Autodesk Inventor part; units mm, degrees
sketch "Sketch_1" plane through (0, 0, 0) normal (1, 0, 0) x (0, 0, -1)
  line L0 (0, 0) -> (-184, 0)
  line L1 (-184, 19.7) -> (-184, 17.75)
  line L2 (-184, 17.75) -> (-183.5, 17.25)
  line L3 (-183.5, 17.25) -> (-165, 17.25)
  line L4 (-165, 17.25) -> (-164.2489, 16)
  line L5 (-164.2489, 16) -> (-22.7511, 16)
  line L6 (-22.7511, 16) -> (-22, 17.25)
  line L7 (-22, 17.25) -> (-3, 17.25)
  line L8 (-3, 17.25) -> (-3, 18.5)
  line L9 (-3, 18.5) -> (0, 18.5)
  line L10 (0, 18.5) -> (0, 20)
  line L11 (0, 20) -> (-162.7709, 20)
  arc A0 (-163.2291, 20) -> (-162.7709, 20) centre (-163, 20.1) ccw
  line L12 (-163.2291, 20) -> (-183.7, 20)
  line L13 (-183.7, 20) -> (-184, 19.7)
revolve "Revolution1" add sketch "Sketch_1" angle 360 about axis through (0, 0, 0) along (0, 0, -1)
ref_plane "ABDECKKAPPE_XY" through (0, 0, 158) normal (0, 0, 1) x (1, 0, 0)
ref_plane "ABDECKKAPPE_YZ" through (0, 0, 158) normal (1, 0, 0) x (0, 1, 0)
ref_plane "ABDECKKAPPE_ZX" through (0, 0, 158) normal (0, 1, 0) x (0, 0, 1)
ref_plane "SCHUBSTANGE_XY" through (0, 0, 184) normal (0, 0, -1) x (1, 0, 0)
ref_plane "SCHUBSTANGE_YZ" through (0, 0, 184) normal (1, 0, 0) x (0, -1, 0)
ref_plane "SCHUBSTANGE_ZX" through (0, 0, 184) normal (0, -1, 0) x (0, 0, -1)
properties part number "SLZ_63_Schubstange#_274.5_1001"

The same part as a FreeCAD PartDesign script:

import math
import FreeCAD as App
import Part
import Sketcher
from FreeCAD import Vector
Q = App.Units.Quantity

doc = App.newDocument("Part")
params = doc.addObject("Spreadsheet::Sheet", "Params")
for row, (alias, value) in enumerate([
    ("sketch1_height", "19 mm"),
    ("sketch1_height2", "3 mm"),
    ("sketch1_radius", "0.25 mm"),
    ("sketch1_width", "1.5 mm"),
    ("sketch1_height3", "18.5 mm"),
    ("revolution_angle", "360 deg"),
], start=1):
    params.set(f"A{row}", alias)
    params.set(f"B{row}", "=" + value)
    params.setAlias(f"B{row}", alias)

body = doc.addObject("PartDesign::Body", "Body")

sketch1 = body.newObject("Sketcher::SketchObject", "Sketch")
sketch1.AttachmentSupport = (doc.getObject("YZ_Plane"), [""])
sketch1.MapMode = "FlatFace"
sketch1.addGeometry(Part.LineSegment(Vector(20, 183.7, 0), Vector(19.7, 184, 0)), False)
sketch1.addGeometry(Part.LineSegment(Vector(19.7, 184, 0), Vector(17.75, 184, 0)), False)
sketch1.addGeometry(Part.LineSegment(Vector(17.75, 184, 0), Vector(17.25, 183.5, 0)), False)
sketch1.addGeometry(Part.LineSegment(Vector(17.25, 183.5, 0), Vector(17.25, 165, 0)), False)
sketch1.addGeometry(Part.LineSegment(Vector(17.25, 165, 0), Vector(16, 164.2489, 0)), False)
sketch1.addGeometry(Part.LineSegment(Vector(16, 164.2489, 0), Vector(16, 22.7511, 0)), False)
sketch1.addGeometry(Part.LineSegment(Vector(16, 22.7511, 0), Vector(17.25, 22, 0)), False)
sketch1.addGeometry(Part.LineSegment(Vector(17.25, 22, 0), Vector(17.25, 3, 0)), False)
sketch1.addGeometry(Part.LineSegment(Vector(17.25, 3, 0), Vector(18.5, 3, 0)), False)
sketch1.addGeometry(Part.LineSegment(Vector(18.5, 3, 0), Vector(18.5, 0, 0)), False)
sketch1.addGeometry(Part.LineSegment(Vector(18.5, 0, 0), Vector(20, 0, 0)), False)
sketch1.addGeometry(Part.LineSegment(Vector(20, 0, 0), Vector(20, 162.7709, 0)), False)
sketch1.addGeometry(Part.ArcOfCircle(Part.Circle(Vector(20.1, 163, 0), Vector(0, 0, 1), 0.249974), math.radians(113.580818), math.radians(246.419182)), False)
sketch1.addGeometry(Part.LineSegment(Vector(20, 163.2291, 0), Vector(20, 183.7, 0)), False)
sketch1.addConstraint(Sketcher.Constraint("Coincident", 0, 2, 1, 1))
sketch1.addConstraint(Sketcher.Constraint("Coincident", 1, 2, 2, 1))
sketch1.addConstraint(Sketcher.Constraint("Coincident", 2, 2, 3, 1))
sketch1.addConstraint(Sketcher.Constraint("Coincident", 3, 2, 4, 1))
sketch1.addConstraint(Sketcher.Constraint("Coincident", 4, 2, 5, 1))
sketch1.addConstraint(Sketcher.Constraint("Coincident", 5, 2, 6, 1))
sketch1.addConstraint(Sketcher.Constraint("Coincident", 6, 2, 7, 1))
sketch1.addConstraint(Sketcher.Constraint("Coincident", 7, 2, 8, 1))
sketch1.addConstraint(Sketcher.Constraint("Coincident", 8, 2, 9, 1))
sketch1.addConstraint(Sketcher.Constraint("Coincident", 9, 2, 10, 1))
sketch1.addConstraint(Sketcher.Constraint("Coincident", 10, 2, 11, 1))
sketch1.addConstraint(Sketcher.Constraint("Coincident", 11, 2, 12, 2))
sketch1.addConstraint(Sketcher.Constraint("Coincident", 12, 1, 13, 1))
sketch1.addConstraint(Sketcher.Constraint("Coincident", 13, 2, 0, 1))
sketch1.addConstraint(Sketcher.Constraint("Horizontal", 1))
sketch1.addConstraint(Sketcher.Constraint("Vertical", 3))
sketch1.addConstraint(Sketcher.Constraint("Vertical", 5))
sketch1.addConstraint(Sketcher.Constraint("Vertical", 7))
sketch1.addConstraint(Sketcher.Constraint("Horizontal", 8))
sketch1.addConstraint(Sketcher.Constraint("Vertical", 9))
sketch1.addConstraint(Sketcher.Constraint("Horizontal", 10))
sketch1.addConstraint(Sketcher.Constraint("Vertical", 11))
sketch1.addConstraint(Sketcher.Constraint("Vertical", 13))
sketch1.addConstraint(Sketcher.Constraint("PointOnObject", 9, 2, -1))
sketch1.addConstraint(Sketcher.Constraint("Perpendicular", 0, 2))
sketch1.addConstraint(Sketcher.Constraint("Vertical", 3, 2, 6, 2))
sketch1.addConstraint(Sketcher.Constraint("Vertical", 11, 2, 12, 1))
sketch1.addConstraint(Sketcher.Constraint("Equal", 4, 6))
sketch1.addConstraint(Sketcher.Constraint("DistanceY", 7, 2, 7, 1, Q("19 mm")))
sketch1.addConstraint(Sketcher.Constraint("DistanceY", 9, 2, 9, 1, Q("3 mm")))
sketch1.addConstraint(Sketcher.Constraint("Angle", 0, Q("135 deg")))
sketch1.addConstraint(Sketcher.Constraint("Angle", 4, Q("-148.9992 deg")))
sketch1.addConstraint(Sketcher.Constraint("Radius", 12, Q("0.25 mm")))
sketch1.addConstraint(Sketcher.Constraint("DistanceX", 10, 1, 10, 2, Q("1.5 mm")))
sketch1.addConstraint(Sketcher.Constraint("DistanceY", 3, 2, 3, 1, Q("18.5 mm")))
sketch1.addConstraint(Sketcher.Constraint("DistanceY", -1, 1, 12, 3, Q("163 mm")))
sketch1.addConstraint(Sketcher.Constraint("DistanceY", -1, 1, 0, 2, Q("184 mm")))
sketch1.addConstraint(Sketcher.Constraint("DistanceY", -1, 1, 3, 2, Q("165 mm")))
sketch1.addConstraint(Sketcher.Constraint("DistanceX", -1, 1, 4, 2, Q("16 mm")))
sketch1.addConstraint(Sketcher.Constraint("DistanceX", -1, 1, 10, 2, Q("20 mm")))
sketch1.addConstraint(Sketcher.Constraint("DistanceX", 1, 2, 1, 1, Q("1.95 mm")))
sketch1.addConstraint(Sketcher.Constraint("DistanceX", 8, 1, 8, 2, Q("1.25 mm")))
sketch1.addConstraint(Sketcher.Constraint("DistanceX", -1, 1, 12, 3, Q("20.1 mm")))
sketch1.setExpression("Constraints[28]", "Params.sketch1_height")
sketch1.setExpression("Constraints[29]", "Params.sketch1_height2")
sketch1.setExpression("Constraints[32]", "Params.sketch1_radius")
sketch1.setExpression("Constraints[33]", "Params.sketch1_width")
sketch1.setExpression("Constraints[34]", "Params.sketch1_height3")
revolution = body.newObject("PartDesign::Revolution", "Revolution")
revolution.Profile = sketch1
revolution.ReferenceAxis = (sketch1, ["V_Axis"])
revolution.setExpression("Angle", "Params.revolution_angle")

doc.recompute()
